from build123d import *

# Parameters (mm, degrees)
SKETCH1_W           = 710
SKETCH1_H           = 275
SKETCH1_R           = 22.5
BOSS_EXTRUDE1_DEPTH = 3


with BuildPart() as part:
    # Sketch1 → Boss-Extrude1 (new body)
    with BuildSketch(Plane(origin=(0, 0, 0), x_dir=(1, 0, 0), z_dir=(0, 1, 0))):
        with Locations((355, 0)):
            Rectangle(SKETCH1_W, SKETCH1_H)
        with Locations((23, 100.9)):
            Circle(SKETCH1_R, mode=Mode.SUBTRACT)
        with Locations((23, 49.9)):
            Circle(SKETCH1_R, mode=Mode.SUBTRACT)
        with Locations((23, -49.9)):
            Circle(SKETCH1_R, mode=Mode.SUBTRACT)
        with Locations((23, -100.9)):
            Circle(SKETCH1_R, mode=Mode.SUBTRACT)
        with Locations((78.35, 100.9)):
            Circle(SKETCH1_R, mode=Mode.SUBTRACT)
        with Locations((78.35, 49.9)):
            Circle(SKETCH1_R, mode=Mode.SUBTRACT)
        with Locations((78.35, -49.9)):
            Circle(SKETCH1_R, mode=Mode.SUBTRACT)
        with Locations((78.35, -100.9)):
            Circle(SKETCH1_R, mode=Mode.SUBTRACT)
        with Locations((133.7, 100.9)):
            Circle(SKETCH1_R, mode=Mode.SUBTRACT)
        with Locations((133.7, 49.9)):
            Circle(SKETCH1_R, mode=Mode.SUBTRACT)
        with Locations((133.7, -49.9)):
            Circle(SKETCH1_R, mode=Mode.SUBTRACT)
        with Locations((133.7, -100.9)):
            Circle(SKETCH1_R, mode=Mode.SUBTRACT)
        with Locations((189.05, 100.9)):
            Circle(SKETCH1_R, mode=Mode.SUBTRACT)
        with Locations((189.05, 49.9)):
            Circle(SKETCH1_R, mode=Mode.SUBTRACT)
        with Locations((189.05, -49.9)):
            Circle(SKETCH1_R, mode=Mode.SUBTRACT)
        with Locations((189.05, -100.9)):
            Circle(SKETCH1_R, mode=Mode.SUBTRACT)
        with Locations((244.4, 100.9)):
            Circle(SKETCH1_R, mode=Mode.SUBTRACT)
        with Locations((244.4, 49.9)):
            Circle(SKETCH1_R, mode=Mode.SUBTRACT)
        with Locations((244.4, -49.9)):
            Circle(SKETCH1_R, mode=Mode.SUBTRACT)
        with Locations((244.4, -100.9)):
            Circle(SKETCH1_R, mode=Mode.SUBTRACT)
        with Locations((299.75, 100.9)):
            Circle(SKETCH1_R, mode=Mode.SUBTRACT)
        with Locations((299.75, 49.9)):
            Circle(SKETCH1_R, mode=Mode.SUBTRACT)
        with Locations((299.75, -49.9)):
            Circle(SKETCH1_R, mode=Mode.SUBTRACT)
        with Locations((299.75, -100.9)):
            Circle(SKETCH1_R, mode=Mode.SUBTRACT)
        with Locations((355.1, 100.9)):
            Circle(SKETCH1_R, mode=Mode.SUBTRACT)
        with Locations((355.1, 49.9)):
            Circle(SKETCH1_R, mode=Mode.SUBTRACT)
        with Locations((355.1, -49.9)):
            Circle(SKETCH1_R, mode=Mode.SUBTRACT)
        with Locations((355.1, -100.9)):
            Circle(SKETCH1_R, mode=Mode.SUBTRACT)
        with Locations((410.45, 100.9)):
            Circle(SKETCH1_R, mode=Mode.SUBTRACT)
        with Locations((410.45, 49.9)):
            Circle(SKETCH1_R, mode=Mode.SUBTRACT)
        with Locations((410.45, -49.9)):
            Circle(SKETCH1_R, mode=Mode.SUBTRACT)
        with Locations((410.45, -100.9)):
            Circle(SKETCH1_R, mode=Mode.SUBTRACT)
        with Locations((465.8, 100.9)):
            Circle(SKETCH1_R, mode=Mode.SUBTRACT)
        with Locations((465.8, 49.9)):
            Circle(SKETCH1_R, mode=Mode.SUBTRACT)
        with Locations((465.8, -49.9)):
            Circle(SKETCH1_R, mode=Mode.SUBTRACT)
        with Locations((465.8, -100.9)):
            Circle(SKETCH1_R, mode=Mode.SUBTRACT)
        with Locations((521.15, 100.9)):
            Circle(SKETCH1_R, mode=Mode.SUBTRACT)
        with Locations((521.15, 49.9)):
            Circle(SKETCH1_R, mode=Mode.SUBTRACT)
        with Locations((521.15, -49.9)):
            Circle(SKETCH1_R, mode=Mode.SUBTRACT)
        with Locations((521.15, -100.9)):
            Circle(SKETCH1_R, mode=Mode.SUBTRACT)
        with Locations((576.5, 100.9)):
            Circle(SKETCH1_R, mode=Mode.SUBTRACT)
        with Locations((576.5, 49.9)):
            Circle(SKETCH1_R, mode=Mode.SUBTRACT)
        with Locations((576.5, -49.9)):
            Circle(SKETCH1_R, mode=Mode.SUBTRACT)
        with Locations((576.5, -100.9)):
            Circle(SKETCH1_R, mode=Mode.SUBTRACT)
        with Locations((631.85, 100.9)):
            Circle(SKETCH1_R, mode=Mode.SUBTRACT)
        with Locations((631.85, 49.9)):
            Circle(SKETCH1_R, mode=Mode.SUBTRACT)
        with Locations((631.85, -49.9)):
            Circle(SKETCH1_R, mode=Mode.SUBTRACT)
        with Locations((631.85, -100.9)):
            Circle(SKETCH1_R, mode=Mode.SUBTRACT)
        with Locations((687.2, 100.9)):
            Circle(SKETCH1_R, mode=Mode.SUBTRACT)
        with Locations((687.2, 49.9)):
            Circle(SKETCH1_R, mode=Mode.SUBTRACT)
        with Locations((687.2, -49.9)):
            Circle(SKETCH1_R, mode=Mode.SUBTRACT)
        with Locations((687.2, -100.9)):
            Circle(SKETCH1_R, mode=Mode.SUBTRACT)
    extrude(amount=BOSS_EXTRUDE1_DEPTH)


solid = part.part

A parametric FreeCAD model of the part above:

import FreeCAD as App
import Part
import Sketcher
from FreeCAD import Vector

doc = App.newDocument("Part")
body = doc.addObject("PartDesign::Body", "Body")

# Sketch on XZ plane
sketch1 = doc.addObject("Sketcher::SketchObject", "Sketch")
body.addObject(sketch1)
sketch1.AttachmentSupport = (doc.XZ_Plane, [""])
sketch1.MapMode = "FlatFace"
sketch1.addGeometry([
    Part.LineSegment(Vector(0, -137.5, 0), Vector(0, 137.5, 0)),  # 0
    Part.LineSegment(Vector(0, 137.5, 0), Vector(710, 137.5, 0)),  # 1
    Part.LineSegment(Vector(710, 137.5, 0), Vector(710, -137.5, 0)),  # 2
    Part.LineSegment(Vector(710, -137.5, 0), Vector(0, -137.5, 0)),  # 3
    Part.Circle(Vector(23, 100.9, 0), Vector(0, 0, 1), 22.5),  # 4
    Part.Circle(Vector(78.35, 100.9, 0), Vector(0, 0, 1), 22.5),  # 5
    Part.Circle(Vector(133.7, 100.9, 0), Vector(0, 0, 1), 22.5),  # 6
    Part.Circle(Vector(189.05, 100.9, 0), Vector(0, 0, 1), 22.5),  # 7
    Part.Circle(Vector(244.4, 100.9, 0), Vector(0, 0, 1), 22.5),  # 8
    Part.Circle(Vector(299.75, 100.9, 0), Vector(0, 0, 1), 22.5),  # 9
    Part.Circle(Vector(23, 49.9, 0), Vector(0, 0, 1), 22.5),  # 10
    Part.Circle(Vector(78.35, 49.9, 0), Vector(0, 0, 1), 22.5),  # 11
    Part.Circle(Vector(133.7, 49.9, 0), Vector(0, 0, 1), 22.5),  # 12
    Part.Circle(Vector(189.05, 49.9, 0), Vector(0, 0, 1), 22.5),  # 13
    Part.Circle(Vector(244.4, 49.9, 0), Vector(0, 0, 1), 22.5),  # 14
    Part.Circle(Vector(299.75, 49.9, 0), Vector(0, 0, 1), 22.5),  # 15
    Part.Circle(Vector(355.1, 100.9, 0), Vector(0, 0, 1), 22.5),  # 16
    Part.Circle(Vector(410.45, 100.9, 0), Vector(0, 0, 1), 22.5),  # 17
    Part.Circle(Vector(465.8, 100.9, 0), Vector(0, 0, 1), 22.5),  # 18
    Part.Circle(Vector(521.15, 100.9, 0), Vector(0, 0, 1), 22.5),  # 19
    Part.Circle(Vector(576.5, 100.9, 0), Vector(0, 0, 1), 22.5),  # 20
    Part.Circle(Vector(631.85, 100.9, 0), Vector(0, 0, 1), 22.5),  # 21
    Part.Circle(Vector(687.2, 100.9, 0), Vector(0, 0, 1), 22.5),  # 22
    Part.Circle(Vector(355.1, 49.9, 0), Vector(0, 0, 1), 22.5),  # 23
    Part.Circle(Vector(410.45, 49.9, 0), Vector(0, 0, 1), 22.5),  # 24
    Part.Circle(Vector(465.8, 49.9, 0), Vector(0, 0, 1), 22.5),  # 25
    Part.Circle(Vector(521.15, 49.9, 0), Vector(0, 0, 1), 22.5),  # 26
    Part.Circle(Vector(576.5, 49.9, 0), Vector(0, 0, 1), 22.5),  # 27
    Part.Circle(Vector(631.85, 49.9, 0), Vector(0, 0, 1), 22.5),  # 28
    Part.Circle(Vector(687.2, 49.9, 0), Vector(0, 0, 1), 22.5),  # 29
    Part.Circle(Vector(23, -49.9, 0), Vector(0, 0, 1), 22.5),  # 30
    Part.Circle(Vector(78.35, -49.9, 0), Vector(0, 0, 1), 22.5),  # 31
    Part.Circle(Vector(133.7, -49.9, 0), Vector(0, 0, 1), 22.5),  # 32
    Part.Circle(Vector(189.05, -49.9, 0), Vector(0, 0, 1), 22.5),  # 33
    Part.Circle(Vector(244.4, -49.9, 0), Vector(0, 0, 1), 22.5),  # 34
    Part.Circle(Vector(299.75, -49.9, 0), Vector(0, 0, 1), 22.5),  # 35
    Part.Circle(Vector(23, -100.9, 0), Vector(0, 0, 1), 22.5),  # 36
    Part.Circle(Vector(78.35, -100.9, 0), Vector(0, 0, 1), 22.5),  # 37
    Part.Circle(Vector(133.7, -100.9, 0), Vector(0, 0, 1), 22.5),  # 38
    Part.Circle(Vector(189.05, -100.9, 0), Vector(0, 0, 1), 22.5),  # 39
    Part.Circle(Vector(244.4, -100.9, 0), Vector(0, 0, 1), 22.5),  # 40
    Part.Circle(Vector(299.75, -100.9, 0), Vector(0, 0, 1), 22.5),  # 41
    Part.Circle(Vector(355.1, -49.9, 0), Vector(0, 0, 1), 22.5),  # 42
    Part.Circle(Vector(410.45, -49.9, 0), Vector(0, 0, 1), 22.5),  # 43
    Part.Circle(Vector(465.8, -49.9, 0), Vector(0, 0, 1), 22.5),  # 44
    Part.Circle(Vector(521.15, -49.9, 0), Vector(0, 0, 1), 22.5),  # 45
    Part.Circle(Vector(576.5, -49.9, 0), Vector(0, 0, 1), 22.5),  # 46
    Part.Circle(Vector(631.85, -49.9, 0), Vector(0, 0, 1), 22.5),  # 47
    Part.Circle(Vector(687.2, -49.9, 0), Vector(0, 0, 1), 22.5),  # 48
    Part.Circle(Vector(355.1, -100.9, 0), Vector(0, 0, 1), 22.5),  # 49
    Part.Circle(Vector(410.45, -100.9, 0), Vector(0, 0, 1), 22.5),  # 50
    Part.Circle(Vector(465.8, -100.9, 0), Vector(0, 0, 1), 22.5),  # 51
    Part.Circle(Vector(521.15, -100.9, 0), Vector(0, 0, 1), 22.5),  # 52
    Part.Circle(Vector(576.5, -100.9, 0), Vector(0, 0, 1), 22.5),  # 53
    Part.Circle(Vector(631.85, -100.9, 0), Vector(0, 0, 1), 22.5),  # 54
    Part.Circle(Vector(687.2, -100.9, 0), Vector(0, 0, 1), 22.5),  # 55
], False)
sketch1.addConstraint([
    Sketcher.Constraint("Coincident", 0, 2, 1, 1),
    Sketcher.Constraint("Coincident", 1, 2, 2, 1),
    Sketcher.Constraint("Coincident", 2, 2, 3, 1),
    Sketcher.Constraint("Coincident", 3, 2, 0, 1),
    Sketcher.Constraint("Vertical", 0),
    Sketcher.Constraint("Horizontal", 1),
    Sketcher.Constraint("Vertical", 2),
    Sketcher.Constraint("Horizontal", 3),
    Sketcher.Constraint("Equal", 4, 5),
    Sketcher.Constraint("Equal", 5, 6),
    Sketcher.Constraint("Equal", 6, 7),
    Sketcher.Constraint("Equal", 7, 8),
    Sketcher.Constraint("Equal", 8, 9),
    Sketcher.Constraint("Equal", 9, 10),
    Sketcher.Constraint("Equal", 10, 11),
    Sketcher.Constraint("Equal", 11, 12),
    Sketcher.Constraint("Equal", 12, 13),
    Sketcher.Constraint("Equal", 13, 14),
    Sketcher.Constraint("Equal", 14, 15),
    Sketcher.Constraint("Equal", 15, 16),
    Sketcher.Constraint("Equal", 16, 17),
    Sketcher.Constraint("Equal", 17, 18),
    Sketcher.Constraint("Equal", 18, 19),
    Sketcher.Constraint("Equal", 19, 20),
    Sketcher.Constraint("Equal", 20, 21),
    Sketcher.Constraint("Equal", 21, 22),
    Sketcher.Constraint("Equal", 22, 23),
    Sketcher.Constraint("Equal", 23, 24),
    Sketcher.Constraint("Equal", 24, 25),
    Sketcher.Constraint("Equal", 25, 26),
    Sketcher.Constraint("Equal", 26, 27),
    Sketcher.Constraint("Equal", 27, 28),
    Sketcher.Constraint("Equal", 28, 29),
    Sketcher.Constraint("Equal", 29, 30),
    Sketcher.Constraint("Equal", 30, 31),
    Sketcher.Constraint("Equal", 31, 32),
    Sketcher.Constraint("Equal", 32, 33),
    Sketcher.Constraint("Equal", 33, 34),
    Sketcher.Constraint("Equal", 34, 35),
    Sketcher.Constraint("Equal", 35, 36),
    Sketcher.Constraint("Equal", 36, 37),
    Sketcher.Constraint("Equal", 37, 38),
    Sketcher.Constraint("Equal", 38, 39),
    Sketcher.Constraint("Equal", 39, 40),
    Sketcher.Constraint("Equal", 40, 41),
    Sketcher.Constraint("Equal", 41, 42),
    Sketcher.Constraint("Equal", 42, 43),
    Sketcher.Constraint("Equal", 43, 44),
    Sketcher.Constraint("Equal", 44, 45),
    Sketcher.Constraint("Equal", 45, 46),
    Sketcher.Constraint("Equal", 46, 47),
    Sketcher.Constraint("Equal", 47, 48),
    Sketcher.Constraint("Equal", 48, 49),
    Sketcher.Constraint("Equal", 49, 50),
    Sketcher.Constraint("Equal", 50, 51),
    Sketcher.Constraint("Equal", 51, 52),
    Sketcher.Constraint("Equal", 52, 53),
    Sketcher.Constraint("Equal", 53, 54),
    Sketcher.Constraint("Equal", 54, 55),
    Sketcher.Constraint("Symmetric", 0, 2, 3, 2, -1, 1),
    Sketcher.Constraint("Symmetric", 10, 3, 30, 3, -1),
    Sketcher.Constraint("Symmetric", 11, 3, 31, 3, -1),
    Sketcher.Constraint("Symmetric", 12, 3, 32, 3, -1),
    Sketcher.Constraint("Symmetric", 13, 3, 33, 3, -1),
    Sketcher.Constraint("Symmetric", 14, 3, 34, 3, -1),
    Sketcher.Constraint("Symmetric", 15, 3, 35, 3, -1),
    Sketcher.Constraint("Symmetric", 4, 3, 36, 3, -1),
    Sketcher.Constraint("Symmetric", 5, 3, 37, 3, -1),
    Sketcher.Constraint("Symmetric", 6, 3, 38, 3, -1),
    Sketcher.Constraint("Symmetric", 7, 3, 39, 3, -1),
    Sketcher.Constraint("Symmetric", 8, 3, 40, 3, -1),
    Sketcher.Constraint("Symmetric", 9, 3, 41, 3, -1),
    Sketcher.Constraint("Symmetric", 23, 3, 42, 3, -1),
    Sketcher.Constraint("Symmetric", 24, 3, 43, 3, -1),
    Sketcher.Constraint("Symmetric", 25, 3, 44, 3, -1),
    Sketcher.Constraint("Symmetric", 26, 3, 45, 3, -1),
    Sketcher.Constraint("Symmetric", 27, 3, 46, 3, -1),
    Sketcher.Constraint("Symmetric", 28, 3, 47, 3, -1),
    Sketcher.Constraint("Symmetric", 29, 3, 48, 3, -1),
    Sketcher.Constraint("Symmetric", 16, 3, 49, 3, -1),
    Sketcher.Constraint("Symmetric", 17, 3, 50, 3, -1),
    Sketcher.Constraint("Symmetric", 18, 3, 51, 3, -1),
    Sketcher.Constraint("Symmetric", 19, 3, 52, 3, -1),
    Sketcher.Constraint("Symmetric", 20, 3, 53, 3, -1),
    Sketcher.Constraint("Symmetric", 21, 3, 54, 3, -1),
    Sketcher.Constraint("Symmetric", 22, 3, 55, 3, -1),
    Sketcher.Constraint("Horizontal", 4, 3, 5, 3),
    Sketcher.Constraint("Horizontal", 5, 3, 6, 3),
    Sketcher.Constraint("Horizontal", 6, 3, 7, 3),
    Sketcher.Constraint("Horizontal", 7, 3, 8, 3),
    Sketcher.Constraint("Horizontal", 8, 3, 9, 3),
    Sketcher.Constraint("Horizontal", 10, 3, 11, 3),
    Sketcher.Constraint("Horizontal", 11, 3, 12, 3),
    Sketcher.Constraint("Horizontal", 12, 3, 13, 3),
    Sketcher.Constraint("Horizontal", 13, 3, 14, 3),
    Sketcher.Constraint("Horizontal", 14, 3, 15, 3),
    Sketcher.Constraint("Horizontal", 9, 3, 16, 3),
    Sketcher.Constraint("Horizontal", 16, 3, 17, 3),
    Sketcher.Constraint("Horizontal", 17, 3, 18, 3),
    Sketcher.Constraint("Horizontal", 18, 3, 19, 3),
    Sketcher.Constraint("Horizontal", 19, 3, 20, 3),
    Sketcher.Constraint("Horizontal", 20, 3, 21, 3),
    Sketcher.Constraint("Horizontal", 21, 3, 22, 3),
    Sketcher.Constraint("Horizontal", 15, 3, 23, 3),
    Sketcher.Constraint("Horizontal", 23, 3, 24, 3),
    Sketcher.Constraint("Horizontal", 24, 3, 25, 3),
    Sketcher.Constraint("Horizontal", 25, 3, 26, 3),
    Sketcher.Constraint("Horizontal", 26, 3, 27, 3),
    Sketcher.Constraint("Horizontal", 27, 3, 28, 3),
    Sketcher.Constraint("Horizontal", 28, 3, 29, 3),
    Sketcher.Constraint("Vertical", 4, 3, 10, 3),
    Sketcher.Constraint("Vertical", 5, 3, 11, 3),
    Sketcher.Constraint("Vertical", 6, 3, 12, 3),
    Sketcher.Constraint("Vertical", 7, 3, 13, 3),
    Sketcher.Constraint("Vertical", 8, 3, 14, 3),
    Sketcher.Constraint("Vertical", 9, 3, 15, 3),
    Sketcher.Constraint("Vertical", 16, 3, 23, 3),
    Sketcher.Constraint("Vertical", 17, 3, 24, 3),
    Sketcher.Constraint("Vertical", 18, 3, 25, 3),
    Sketcher.Constraint("Vertical", 19, 3, 26, 3),
    Sketcher.Constraint("Vertical", 20, 3, 27, 3),
    Sketcher.Constraint("Vertical", 21, 3, 28, 3),
    Sketcher.Constraint("Vertical", 22, 3, 29, 3),
    Sketcher.Constraint("Diameter", 4, 45.0),
    Sketcher.Constraint("DistanceX", 1, 1, 1, 2, 710.0),
    Sketcher.Constraint("DistanceY", 0, 1, 0, 2, 275.0),
    Sketcher.Constraint("DistanceX", -1, 1, 4, 3, 23.0),
    Sketcher.Constraint("DistanceY", 10, 3, 4, 3, 51.0),
    Sketcher.Constraint("DistanceY", -1, 1, 4, 3, 100.9),
    Sketcher.Constraint("DistanceX", -1, 1, 6, 3, 133.7),
    Sketcher.Constraint("DistanceX", -1, 1, 8, 3, 244.4),
    Sketcher.Constraint("DistanceX", -1, 1, 16, 3, 355.1),
    Sketcher.Constraint("DistanceX", -1, 1, 18, 3, 465.8),
    Sketcher.Constraint("DistanceX", -1, 1, 20, 3, 576.5),
    Sketcher.Constraint("DistanceX", -1, 1, 22, 3, 687.2),
    Sketcher.Constraint("DistanceX", 5, 3, 7, 3, 110.7),
    Sketcher.Constraint("DistanceX", 7, 3, 9, 3, 110.7),
    Sketcher.Constraint("DistanceX", 9, 3, 17, 3, 110.7),
    Sketcher.Constraint("DistanceX", 17, 3, 19, 3, 110.7),
    Sketcher.Constraint("DistanceX", 19, 3, 21, 3, 110.7),
    Sketcher.Constraint("DistanceX", -1, 1, 5, 3, 78.35),
])
pad1 = doc.addObject("PartDesign::Pad", "Pad")
body.addObject(pad1)
pad1.Profile = sketch1
pad1.Length = 3
pad1.Reversed = True

doc.recompute()
